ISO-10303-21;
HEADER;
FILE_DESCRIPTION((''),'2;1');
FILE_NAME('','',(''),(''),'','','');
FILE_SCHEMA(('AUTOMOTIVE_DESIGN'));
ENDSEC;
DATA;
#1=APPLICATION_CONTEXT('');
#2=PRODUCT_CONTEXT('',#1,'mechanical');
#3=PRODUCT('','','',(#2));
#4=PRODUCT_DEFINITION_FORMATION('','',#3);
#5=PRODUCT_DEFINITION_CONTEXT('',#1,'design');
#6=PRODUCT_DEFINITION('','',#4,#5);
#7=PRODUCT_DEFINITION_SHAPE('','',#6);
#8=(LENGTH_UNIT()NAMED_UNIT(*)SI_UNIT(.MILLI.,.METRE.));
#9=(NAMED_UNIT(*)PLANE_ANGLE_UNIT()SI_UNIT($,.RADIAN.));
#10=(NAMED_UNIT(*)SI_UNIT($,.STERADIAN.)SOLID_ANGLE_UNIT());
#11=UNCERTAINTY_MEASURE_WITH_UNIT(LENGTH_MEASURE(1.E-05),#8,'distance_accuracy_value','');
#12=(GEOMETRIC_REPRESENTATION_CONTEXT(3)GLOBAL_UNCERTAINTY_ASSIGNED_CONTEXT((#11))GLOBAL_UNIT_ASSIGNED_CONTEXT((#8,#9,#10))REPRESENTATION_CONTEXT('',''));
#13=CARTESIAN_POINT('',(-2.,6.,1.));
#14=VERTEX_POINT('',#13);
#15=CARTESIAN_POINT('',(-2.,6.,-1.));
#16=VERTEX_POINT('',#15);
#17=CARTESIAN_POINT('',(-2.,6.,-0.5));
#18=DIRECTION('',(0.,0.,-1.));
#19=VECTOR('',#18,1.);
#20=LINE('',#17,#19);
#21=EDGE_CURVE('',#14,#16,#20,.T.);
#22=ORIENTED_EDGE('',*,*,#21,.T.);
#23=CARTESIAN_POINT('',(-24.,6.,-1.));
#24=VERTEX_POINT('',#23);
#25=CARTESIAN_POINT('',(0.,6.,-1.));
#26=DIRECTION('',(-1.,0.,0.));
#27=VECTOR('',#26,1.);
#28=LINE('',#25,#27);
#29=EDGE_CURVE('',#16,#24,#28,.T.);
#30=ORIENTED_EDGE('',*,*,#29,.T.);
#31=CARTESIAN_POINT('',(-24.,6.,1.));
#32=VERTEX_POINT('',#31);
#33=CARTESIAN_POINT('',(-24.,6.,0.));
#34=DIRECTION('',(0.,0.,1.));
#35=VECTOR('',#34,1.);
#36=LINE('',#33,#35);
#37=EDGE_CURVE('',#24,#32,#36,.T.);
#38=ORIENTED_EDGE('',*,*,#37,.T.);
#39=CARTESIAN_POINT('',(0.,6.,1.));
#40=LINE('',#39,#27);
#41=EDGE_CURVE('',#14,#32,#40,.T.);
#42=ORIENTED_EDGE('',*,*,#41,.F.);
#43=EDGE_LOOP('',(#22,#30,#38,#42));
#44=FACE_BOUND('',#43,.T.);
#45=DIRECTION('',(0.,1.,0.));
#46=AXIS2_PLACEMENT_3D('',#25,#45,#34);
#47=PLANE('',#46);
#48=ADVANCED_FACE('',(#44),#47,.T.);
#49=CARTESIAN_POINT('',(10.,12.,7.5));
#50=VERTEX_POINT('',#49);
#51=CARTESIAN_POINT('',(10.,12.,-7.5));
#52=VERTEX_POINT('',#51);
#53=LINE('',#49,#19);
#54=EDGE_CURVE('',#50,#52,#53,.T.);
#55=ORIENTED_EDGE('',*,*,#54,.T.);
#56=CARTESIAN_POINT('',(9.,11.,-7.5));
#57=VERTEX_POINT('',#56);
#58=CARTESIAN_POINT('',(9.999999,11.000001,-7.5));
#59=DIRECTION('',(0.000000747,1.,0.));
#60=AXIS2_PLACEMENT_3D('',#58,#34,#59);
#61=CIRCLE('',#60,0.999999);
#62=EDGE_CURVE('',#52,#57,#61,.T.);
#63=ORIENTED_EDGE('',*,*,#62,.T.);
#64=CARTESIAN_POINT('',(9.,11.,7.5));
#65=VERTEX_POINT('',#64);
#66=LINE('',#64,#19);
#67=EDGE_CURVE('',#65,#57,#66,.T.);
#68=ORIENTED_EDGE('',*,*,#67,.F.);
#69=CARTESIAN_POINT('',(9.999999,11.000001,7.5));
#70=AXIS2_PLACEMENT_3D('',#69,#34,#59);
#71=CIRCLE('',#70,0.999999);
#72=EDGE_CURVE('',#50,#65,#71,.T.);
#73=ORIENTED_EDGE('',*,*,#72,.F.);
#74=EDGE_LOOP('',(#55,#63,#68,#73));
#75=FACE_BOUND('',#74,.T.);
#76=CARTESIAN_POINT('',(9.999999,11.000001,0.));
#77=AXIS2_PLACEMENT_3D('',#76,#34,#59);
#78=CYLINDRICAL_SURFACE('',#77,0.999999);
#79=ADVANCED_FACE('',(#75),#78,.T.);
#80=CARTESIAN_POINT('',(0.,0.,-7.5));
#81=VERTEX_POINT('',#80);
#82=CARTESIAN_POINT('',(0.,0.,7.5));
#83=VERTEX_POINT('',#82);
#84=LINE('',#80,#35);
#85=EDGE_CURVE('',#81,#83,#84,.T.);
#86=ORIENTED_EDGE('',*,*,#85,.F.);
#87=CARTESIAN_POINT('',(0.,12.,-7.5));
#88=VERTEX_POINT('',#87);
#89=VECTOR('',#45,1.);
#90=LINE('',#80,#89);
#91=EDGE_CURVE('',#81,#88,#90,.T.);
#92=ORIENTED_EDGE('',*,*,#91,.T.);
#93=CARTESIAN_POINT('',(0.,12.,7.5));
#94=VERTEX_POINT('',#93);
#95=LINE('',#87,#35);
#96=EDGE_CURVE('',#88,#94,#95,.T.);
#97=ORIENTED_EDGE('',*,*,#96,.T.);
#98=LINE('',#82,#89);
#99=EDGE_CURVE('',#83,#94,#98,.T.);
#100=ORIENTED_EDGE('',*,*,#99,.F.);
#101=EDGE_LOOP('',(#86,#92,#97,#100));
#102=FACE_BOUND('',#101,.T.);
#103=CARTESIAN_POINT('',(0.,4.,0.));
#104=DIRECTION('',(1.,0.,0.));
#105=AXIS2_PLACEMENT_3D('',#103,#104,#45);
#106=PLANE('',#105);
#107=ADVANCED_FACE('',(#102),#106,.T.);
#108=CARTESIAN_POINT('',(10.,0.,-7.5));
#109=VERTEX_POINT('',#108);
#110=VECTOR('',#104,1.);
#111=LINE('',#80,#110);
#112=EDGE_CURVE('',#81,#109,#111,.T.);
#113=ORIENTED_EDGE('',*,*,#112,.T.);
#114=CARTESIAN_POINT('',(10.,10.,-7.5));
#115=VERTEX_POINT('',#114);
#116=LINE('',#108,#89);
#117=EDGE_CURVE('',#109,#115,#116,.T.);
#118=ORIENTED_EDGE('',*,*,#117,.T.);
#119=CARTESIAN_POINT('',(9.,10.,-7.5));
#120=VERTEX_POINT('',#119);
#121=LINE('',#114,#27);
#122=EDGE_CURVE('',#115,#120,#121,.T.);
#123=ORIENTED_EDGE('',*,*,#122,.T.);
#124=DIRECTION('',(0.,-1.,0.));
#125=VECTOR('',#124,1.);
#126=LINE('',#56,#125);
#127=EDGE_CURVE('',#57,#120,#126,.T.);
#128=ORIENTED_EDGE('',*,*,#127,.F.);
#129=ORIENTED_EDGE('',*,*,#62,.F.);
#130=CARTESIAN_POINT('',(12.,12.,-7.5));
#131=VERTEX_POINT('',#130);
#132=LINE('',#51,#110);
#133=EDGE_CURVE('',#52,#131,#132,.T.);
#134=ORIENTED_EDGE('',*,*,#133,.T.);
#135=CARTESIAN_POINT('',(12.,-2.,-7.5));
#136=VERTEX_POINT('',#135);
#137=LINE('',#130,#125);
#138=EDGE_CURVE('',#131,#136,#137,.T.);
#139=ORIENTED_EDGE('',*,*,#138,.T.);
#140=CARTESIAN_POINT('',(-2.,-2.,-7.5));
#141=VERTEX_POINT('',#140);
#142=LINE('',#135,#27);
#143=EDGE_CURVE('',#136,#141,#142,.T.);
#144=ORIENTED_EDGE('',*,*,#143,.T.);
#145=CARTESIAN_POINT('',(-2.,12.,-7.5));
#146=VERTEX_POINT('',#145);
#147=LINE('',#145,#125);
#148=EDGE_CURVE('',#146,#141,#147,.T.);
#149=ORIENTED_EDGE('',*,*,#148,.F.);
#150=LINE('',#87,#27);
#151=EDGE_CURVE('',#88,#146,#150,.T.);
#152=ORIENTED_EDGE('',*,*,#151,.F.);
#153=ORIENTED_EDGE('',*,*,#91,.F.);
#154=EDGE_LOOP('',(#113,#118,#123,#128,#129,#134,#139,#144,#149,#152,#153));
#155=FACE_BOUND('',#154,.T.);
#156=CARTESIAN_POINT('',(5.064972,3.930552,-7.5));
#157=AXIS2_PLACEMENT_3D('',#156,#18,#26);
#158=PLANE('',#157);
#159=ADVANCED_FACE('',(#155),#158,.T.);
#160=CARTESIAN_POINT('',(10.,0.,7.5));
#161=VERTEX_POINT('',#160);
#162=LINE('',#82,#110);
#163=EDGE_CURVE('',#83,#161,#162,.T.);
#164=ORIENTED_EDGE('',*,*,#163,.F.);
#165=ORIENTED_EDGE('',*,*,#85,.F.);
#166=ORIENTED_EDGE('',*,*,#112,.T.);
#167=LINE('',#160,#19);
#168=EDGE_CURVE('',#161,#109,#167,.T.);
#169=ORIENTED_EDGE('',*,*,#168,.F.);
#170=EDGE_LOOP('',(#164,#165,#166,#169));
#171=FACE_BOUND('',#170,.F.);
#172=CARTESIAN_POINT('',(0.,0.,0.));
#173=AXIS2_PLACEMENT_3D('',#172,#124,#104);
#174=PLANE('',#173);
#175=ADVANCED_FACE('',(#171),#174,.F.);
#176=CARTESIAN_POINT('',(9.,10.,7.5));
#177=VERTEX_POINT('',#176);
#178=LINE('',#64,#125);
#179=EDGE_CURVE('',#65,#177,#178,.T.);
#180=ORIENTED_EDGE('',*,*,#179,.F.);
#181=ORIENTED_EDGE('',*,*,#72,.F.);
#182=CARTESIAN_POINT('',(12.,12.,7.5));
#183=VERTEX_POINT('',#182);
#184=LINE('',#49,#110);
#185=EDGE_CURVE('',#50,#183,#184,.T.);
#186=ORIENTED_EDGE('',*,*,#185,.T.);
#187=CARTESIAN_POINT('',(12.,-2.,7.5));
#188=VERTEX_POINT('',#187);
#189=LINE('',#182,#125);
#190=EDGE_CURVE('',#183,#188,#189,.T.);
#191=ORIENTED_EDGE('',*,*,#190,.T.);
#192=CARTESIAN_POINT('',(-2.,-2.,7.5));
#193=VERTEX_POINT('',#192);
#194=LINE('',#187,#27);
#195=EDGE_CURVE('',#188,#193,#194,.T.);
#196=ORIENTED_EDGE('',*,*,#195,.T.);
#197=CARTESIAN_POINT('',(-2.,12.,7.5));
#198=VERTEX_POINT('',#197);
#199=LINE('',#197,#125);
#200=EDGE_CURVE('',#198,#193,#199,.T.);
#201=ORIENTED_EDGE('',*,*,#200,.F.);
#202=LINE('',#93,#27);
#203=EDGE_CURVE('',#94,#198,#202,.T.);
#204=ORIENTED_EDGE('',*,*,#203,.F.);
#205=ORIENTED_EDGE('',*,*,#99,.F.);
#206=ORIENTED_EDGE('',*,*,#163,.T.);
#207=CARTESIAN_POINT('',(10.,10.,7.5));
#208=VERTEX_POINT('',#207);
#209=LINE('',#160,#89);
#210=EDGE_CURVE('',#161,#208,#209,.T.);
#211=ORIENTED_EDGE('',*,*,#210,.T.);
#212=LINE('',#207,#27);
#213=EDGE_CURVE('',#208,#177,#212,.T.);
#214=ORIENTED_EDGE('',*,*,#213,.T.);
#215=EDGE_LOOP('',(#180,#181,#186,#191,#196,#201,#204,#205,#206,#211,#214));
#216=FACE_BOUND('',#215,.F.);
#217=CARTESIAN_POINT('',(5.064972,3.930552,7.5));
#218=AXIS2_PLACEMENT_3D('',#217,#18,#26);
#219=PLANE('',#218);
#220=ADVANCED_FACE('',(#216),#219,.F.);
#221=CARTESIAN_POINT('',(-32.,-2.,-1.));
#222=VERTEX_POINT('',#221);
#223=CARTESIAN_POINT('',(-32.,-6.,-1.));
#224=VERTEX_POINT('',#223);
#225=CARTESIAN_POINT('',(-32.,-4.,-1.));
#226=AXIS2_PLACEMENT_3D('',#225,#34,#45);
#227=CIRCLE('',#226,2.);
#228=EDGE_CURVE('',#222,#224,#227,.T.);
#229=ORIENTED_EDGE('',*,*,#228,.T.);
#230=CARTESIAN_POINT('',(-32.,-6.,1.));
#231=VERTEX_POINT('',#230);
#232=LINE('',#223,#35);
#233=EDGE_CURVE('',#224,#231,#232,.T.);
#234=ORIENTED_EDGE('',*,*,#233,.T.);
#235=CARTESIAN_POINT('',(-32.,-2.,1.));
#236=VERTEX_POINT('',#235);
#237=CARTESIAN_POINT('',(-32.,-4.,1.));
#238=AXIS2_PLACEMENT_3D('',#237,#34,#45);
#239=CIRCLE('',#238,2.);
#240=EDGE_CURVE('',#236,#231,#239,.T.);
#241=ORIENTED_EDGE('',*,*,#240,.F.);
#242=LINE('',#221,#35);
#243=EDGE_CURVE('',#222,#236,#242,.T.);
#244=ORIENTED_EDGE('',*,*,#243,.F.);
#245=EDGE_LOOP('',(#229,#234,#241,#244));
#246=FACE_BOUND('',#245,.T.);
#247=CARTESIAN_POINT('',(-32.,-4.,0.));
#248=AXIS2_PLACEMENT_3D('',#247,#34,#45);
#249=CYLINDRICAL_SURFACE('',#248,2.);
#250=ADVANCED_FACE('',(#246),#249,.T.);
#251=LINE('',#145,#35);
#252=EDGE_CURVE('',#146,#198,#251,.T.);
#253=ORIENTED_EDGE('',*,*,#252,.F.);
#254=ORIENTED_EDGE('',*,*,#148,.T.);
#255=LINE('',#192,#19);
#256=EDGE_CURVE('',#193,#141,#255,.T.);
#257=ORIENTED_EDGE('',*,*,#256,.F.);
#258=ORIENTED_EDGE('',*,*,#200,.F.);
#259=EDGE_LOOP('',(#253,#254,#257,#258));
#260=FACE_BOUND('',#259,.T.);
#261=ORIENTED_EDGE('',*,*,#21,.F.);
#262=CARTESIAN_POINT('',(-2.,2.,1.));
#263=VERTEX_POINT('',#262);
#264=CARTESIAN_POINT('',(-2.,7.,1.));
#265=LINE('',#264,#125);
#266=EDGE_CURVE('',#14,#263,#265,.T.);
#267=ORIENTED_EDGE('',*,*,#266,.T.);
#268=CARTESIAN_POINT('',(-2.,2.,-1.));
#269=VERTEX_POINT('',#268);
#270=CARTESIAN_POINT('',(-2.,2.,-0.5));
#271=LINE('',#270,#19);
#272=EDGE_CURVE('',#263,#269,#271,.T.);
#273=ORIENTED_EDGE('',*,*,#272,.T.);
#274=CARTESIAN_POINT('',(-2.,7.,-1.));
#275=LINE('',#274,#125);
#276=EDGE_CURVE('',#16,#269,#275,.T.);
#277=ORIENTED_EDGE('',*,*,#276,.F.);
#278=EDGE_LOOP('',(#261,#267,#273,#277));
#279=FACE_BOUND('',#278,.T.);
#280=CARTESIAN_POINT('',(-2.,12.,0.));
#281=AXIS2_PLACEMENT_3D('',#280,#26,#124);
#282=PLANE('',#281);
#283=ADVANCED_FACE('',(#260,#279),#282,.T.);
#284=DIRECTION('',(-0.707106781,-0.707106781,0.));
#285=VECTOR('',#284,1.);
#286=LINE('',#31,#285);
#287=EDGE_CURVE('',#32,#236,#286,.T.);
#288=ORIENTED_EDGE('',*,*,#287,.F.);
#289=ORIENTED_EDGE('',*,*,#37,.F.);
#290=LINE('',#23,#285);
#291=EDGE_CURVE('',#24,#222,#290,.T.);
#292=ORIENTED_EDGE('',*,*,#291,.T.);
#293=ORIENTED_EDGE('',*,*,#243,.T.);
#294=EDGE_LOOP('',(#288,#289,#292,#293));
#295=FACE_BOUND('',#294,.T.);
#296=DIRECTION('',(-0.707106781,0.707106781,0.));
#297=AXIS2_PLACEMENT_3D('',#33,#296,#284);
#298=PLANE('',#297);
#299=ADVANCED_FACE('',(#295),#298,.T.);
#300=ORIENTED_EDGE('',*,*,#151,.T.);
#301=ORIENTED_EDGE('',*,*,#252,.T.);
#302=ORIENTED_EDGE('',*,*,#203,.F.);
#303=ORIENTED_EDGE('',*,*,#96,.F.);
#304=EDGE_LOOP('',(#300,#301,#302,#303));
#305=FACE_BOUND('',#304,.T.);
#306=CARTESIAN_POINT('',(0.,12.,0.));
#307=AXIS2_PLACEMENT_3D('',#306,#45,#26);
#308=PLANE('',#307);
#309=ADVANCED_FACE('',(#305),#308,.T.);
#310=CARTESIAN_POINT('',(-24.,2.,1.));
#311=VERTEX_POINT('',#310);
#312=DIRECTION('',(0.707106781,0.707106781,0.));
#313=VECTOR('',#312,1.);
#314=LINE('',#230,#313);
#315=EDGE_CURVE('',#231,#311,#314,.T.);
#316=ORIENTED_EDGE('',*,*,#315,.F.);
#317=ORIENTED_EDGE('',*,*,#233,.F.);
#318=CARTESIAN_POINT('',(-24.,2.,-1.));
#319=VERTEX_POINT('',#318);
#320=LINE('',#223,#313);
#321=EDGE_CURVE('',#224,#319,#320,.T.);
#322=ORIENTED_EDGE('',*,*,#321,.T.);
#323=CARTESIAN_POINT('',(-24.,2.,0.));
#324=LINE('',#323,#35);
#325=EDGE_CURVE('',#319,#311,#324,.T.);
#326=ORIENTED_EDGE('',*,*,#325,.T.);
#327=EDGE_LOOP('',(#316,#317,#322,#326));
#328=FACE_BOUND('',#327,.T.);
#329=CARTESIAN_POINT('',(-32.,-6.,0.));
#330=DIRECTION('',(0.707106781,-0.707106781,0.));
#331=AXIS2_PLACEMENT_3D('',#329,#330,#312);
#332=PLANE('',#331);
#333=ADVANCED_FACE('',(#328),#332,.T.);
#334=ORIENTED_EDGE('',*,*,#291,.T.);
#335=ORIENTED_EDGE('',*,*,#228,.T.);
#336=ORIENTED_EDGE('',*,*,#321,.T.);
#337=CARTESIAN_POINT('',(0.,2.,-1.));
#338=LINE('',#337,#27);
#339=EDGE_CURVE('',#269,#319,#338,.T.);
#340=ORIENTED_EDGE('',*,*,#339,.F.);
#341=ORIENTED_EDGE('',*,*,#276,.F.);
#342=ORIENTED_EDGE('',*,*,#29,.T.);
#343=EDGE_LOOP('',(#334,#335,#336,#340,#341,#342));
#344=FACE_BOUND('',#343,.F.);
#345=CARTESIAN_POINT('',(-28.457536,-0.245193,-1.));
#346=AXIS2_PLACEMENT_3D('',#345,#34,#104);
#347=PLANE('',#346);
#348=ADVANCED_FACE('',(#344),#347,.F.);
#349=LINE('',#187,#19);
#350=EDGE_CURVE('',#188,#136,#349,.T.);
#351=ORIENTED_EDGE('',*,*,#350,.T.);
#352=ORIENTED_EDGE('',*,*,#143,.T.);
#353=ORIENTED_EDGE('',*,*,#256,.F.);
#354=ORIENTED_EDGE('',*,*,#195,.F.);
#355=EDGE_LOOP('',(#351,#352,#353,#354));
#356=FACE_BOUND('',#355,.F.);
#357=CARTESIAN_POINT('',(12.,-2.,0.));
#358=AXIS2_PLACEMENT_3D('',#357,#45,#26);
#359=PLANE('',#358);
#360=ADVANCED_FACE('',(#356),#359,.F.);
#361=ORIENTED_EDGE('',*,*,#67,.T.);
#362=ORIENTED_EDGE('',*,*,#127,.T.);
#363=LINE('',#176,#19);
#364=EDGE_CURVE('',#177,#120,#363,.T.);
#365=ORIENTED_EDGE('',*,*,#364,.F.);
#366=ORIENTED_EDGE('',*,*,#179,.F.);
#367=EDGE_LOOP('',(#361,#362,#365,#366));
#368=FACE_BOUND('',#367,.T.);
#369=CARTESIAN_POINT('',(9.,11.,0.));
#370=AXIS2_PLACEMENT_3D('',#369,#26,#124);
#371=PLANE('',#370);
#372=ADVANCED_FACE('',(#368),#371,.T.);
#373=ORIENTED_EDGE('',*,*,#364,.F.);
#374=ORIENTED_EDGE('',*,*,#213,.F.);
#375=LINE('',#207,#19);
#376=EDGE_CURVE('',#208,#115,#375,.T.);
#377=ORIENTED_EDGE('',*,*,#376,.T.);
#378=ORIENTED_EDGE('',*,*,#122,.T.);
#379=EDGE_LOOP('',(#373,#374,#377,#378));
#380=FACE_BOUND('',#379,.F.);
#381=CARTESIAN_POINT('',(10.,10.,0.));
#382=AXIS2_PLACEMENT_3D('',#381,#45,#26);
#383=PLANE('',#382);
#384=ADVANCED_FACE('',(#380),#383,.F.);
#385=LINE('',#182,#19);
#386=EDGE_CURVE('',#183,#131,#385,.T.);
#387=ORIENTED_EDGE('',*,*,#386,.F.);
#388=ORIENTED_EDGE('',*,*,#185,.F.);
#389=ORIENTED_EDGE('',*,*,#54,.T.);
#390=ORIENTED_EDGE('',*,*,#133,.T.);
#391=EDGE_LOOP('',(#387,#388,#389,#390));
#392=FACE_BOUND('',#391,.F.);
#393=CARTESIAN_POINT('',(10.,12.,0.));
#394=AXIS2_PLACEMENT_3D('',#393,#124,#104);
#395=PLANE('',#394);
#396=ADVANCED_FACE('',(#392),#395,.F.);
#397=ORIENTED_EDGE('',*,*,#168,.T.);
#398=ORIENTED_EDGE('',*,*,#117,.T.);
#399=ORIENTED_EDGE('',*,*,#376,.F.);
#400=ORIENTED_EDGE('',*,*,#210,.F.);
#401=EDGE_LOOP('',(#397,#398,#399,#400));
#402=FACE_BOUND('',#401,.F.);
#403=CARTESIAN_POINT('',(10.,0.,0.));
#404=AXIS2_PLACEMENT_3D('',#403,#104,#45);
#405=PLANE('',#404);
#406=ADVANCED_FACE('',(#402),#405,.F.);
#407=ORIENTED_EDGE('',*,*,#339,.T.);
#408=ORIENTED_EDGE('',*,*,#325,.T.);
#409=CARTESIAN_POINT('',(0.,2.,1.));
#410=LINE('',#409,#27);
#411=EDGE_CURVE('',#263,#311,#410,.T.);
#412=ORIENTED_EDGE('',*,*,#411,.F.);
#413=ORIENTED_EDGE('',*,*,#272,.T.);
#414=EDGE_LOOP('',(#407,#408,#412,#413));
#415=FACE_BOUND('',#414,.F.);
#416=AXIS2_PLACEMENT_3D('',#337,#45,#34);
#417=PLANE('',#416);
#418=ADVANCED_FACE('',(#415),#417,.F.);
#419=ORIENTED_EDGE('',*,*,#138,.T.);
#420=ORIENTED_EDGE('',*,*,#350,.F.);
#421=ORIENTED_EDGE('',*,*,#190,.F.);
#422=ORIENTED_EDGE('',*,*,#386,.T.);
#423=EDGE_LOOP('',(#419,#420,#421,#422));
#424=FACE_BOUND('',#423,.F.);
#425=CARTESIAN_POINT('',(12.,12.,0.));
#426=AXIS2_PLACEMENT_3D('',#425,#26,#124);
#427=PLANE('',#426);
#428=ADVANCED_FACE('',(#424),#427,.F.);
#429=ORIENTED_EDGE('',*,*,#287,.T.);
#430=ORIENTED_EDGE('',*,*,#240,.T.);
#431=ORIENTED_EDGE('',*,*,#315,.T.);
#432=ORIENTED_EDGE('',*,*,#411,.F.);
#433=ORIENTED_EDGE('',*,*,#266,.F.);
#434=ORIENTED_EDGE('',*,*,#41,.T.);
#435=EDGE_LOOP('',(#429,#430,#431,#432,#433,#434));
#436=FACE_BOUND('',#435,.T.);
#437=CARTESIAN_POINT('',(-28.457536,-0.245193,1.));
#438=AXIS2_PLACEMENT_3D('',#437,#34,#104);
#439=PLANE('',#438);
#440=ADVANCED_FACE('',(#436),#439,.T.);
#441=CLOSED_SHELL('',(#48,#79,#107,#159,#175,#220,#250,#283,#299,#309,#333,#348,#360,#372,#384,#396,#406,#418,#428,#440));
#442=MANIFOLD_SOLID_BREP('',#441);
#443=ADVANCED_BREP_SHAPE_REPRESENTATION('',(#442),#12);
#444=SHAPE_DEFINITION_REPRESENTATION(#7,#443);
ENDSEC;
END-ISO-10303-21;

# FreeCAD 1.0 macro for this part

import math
import FreeCAD as App
import Part
import Sketcher
from FreeCAD import Vector
Q = App.Units.Quantity


def add_polygon(sketch, points):
    """Adds a closed chain of lines whose ends are joined by coincident constraints."""
    first, n = sketch.GeometryCount, len(points)
    for a, b in zip(points, points[1:] + points[:1]):
        sketch.addGeometry(Part.LineSegment(App.Vector(*a, 0), App.Vector(*b, 0)), False)
    for i in range(n):
        sketch.addConstraint(Sketcher.Constraint("Coincident", first + i, 2, first + (i + 1) % n, 1))

doc = App.newDocument("Part")
body = doc.addObject("PartDesign::Body", "Body")

sketch1 = body.newObject("Sketcher::SketchObject", "Sketch")
sketch1.AttachmentSupport = (doc.getObject("XY_Plane"), [""])
sketch1.MapMode = "FlatFace"
sketch1.addGeometry(Part.LineSegment(Vector(10, 0, 0), Vector(0, 0, 0)), False)
sketch1.addGeometry(Part.LineSegment(Vector(0, 0, 0), Vector(0, 12, 0)), False)
sketch1.addGeometry(Part.LineSegment(Vector(0, 12, 0), Vector(-2, 12, 0)), False)
sketch1.addGeometry(Part.LineSegment(Vector(-2, 12, 0), Vector(-2, -2, 0)), False)
sketch1.addGeometry(Part.LineSegment(Vector(-2, -2, 0), Vector(12, -2, 0)), False)
sketch1.addGeometry(Part.LineSegment(Vector(12, -2, 0), Vector(12, 12, 0)), False)
sketch1.addGeometry(Part.LineSegment(Vector(12, 12, 0), Vector(10, 12, 0)), False)
sketch1.addGeometry(Part.ArcOfCircle(Part.Circle(Vector(10, 11, 0), Vector(0, 0, 1), 1), math.radians(90), math.radians(180)), False)
sketch1.addGeometry(Part.LineSegment(Vector(9, 11, 0), Vector(9, 10, 0)), False)
sketch1.addGeometry(Part.LineSegment(Vector(9, 10, 0), Vector(10, 10, 0)), False)
sketch1.addGeometry(Part.LineSegment(Vector(10, 10, 0), Vector(10, 0, 0)), False)
sketch1.addConstraint(Sketcher.Constraint("Coincident", 0, 2, 1, 1))
sketch1.addConstraint(Sketcher.Constraint("Coincident", 1, 2, 2, 1))
sketch1.addConstraint(Sketcher.Constraint("Coincident", 2, 2, 3, 1))
sketch1.addConstraint(Sketcher.Constraint("Coincident", 3, 2, 4, 1))
sketch1.addConstraint(Sketcher.Constraint("Coincident", 4, 2, 5, 1))
sketch1.addConstraint(Sketcher.Constraint("Coincident", 5, 2, 6, 1))
sketch1.addConstraint(Sketcher.Constraint("Tangent", 6, 2, 7, 1))
sketch1.addConstraint(Sketcher.Constraint("Tangent", 7, 2, 8, 1))
sketch1.addConstraint(Sketcher.Constraint("Coincident", 8, 2, 9, 1))
sketch1.addConstraint(Sketcher.Constraint("Coincident", 9, 2, 10, 1))
sketch1.addConstraint(Sketcher.Constraint("Coincident", 10, 2, 0, 1))
sketch1.addConstraint(Sketcher.Constraint("Horizontal", 0))
sketch1.addConstraint(Sketcher.Constraint("Vertical", 1))
sketch1.addConstraint(Sketcher.Constraint("Horizontal", 2))
sketch1.addConstraint(Sketcher.Constraint("Vertical", 3))
sketch1.addConstraint(Sketcher.Constraint("Horizontal", 4))
sketch1.addConstraint(Sketcher.Constraint("Vertical", 5))
sketch1.addConstraint(Sketcher.Constraint("Horizontal", 6))
sketch1.addConstraint(Sketcher.Constraint("Vertical", 8))
sketch1.addConstraint(Sketcher.Constraint("Horizontal", 9))
sketch1.addConstraint(Sketcher.Constraint("Vertical", 10))
sketch1.addConstraint(Sketcher.Constraint("Coincident", 0, 2, -1, 1))
sketch1.addConstraint(Sketcher.Constraint("Horizontal", 2, 2, 5, 2))
sketch1.addConstraint(Sketcher.Constraint("Vertical", 6, 2, 9, 2))
sketch1.addConstraint(Sketcher.Constraint("Equal", 2, 6))
sketch1.addConstraint(Sketcher.Constraint("Equal", 4, 3))
sketch1.addConstraint(Sketcher.Constraint("Equal", 9, 8))
sketch1.addConstraint(Sketcher.Constraint("Equal", 0, 10))
sketch1.addConstraint(Sketcher.Constraint("Radius", 7, 0.999999))
sketch1.addConstraint(Sketcher.Constraint("DistanceX", 0, 2, 0, 1, 10.0))
sketch1.addConstraint(Sketcher.Constraint("DistanceX", 2, 2, 2, 1, 2.0))
pad1 = body.newObject("PartDesign::Pad", "Pad")
pad1.Profile = sketch1
pad1.Length = 15
pad1.Midplane = True

sketch2 = body.newObject("Sketcher::SketchObject", "Sketch001")
sketch2.AttachmentSupport = (doc.getObject("YZ_Plane"), [""])
sketch2.MapMode = "FlatFace"
add_polygon(sketch2, [(2, 1), (2, -1), (6, -1), (6, 1)])
sketch2.addConstraint(Sketcher.Constraint("Vertical", 0))
sketch2.addConstraint(Sketcher.Constraint("Horizontal", 1))
sketch2.addConstraint(Sketcher.Constraint("Vertical", 2))
sketch2.addConstraint(Sketcher.Constraint("Horizontal", 3))
sketch2.addConstraint(Sketcher.Constraint("DistanceX", 1, 1, 1, 2, 4.0))
sketch2.addConstraint(Sketcher.Constraint("DistanceY", 0, 2, 0, 1, 2.0))
sketch2.addConstraint(Sketcher.Constraint("DistanceX", -1, 1, 0, 2, 2.0))
sketch2.addConstraint(Sketcher.Constraint("DistanceY", 0, 2, -1, 1, 1.0))
pad2 = body.newObject("PartDesign::Pad", "Pad001")
pad2.Profile = sketch2
pad2.Length = 24
pad2.Reversed = True

sketch3 = body.newObject("Sketcher::SketchObject", "Sketch002")
sketch3.AttachmentSupport = (doc.getObject("XY_Plane"), [""])
sketch3.MapMode = "FlatFace"
sketch3.addGeometry(Part.LineSegment(Vector(-24, 6, 0), Vector(-32, -2, 0)), False)
sketch3.addGeometry(Part.ArcOfCircle(Part.Circle(Vector(-32, -4, 0), Vector(0, 0, 1), 2), math.radians(90), math.radians(270)), False)
sketch3.addGeometry(Part.LineSegment(Vector(-32, -6, 0), Vector(-24, 2, 0)), False)
sketch3.addGeometry(Part.LineSegment(Vector(-24, 2, 0), Vector(-24, 6, 0)), False)
sketch3.addConstraint(Sketcher.Constraint("Coincident", 0, 2, 1, 1))
sketch3.addConstraint(Sketcher.Constraint("Coincident", 1, 2, 2, 1))
sketch3.addConstraint(Sketcher.Constraint("Coincident", 2, 2, 3, 1))
sketch3.addConstraint(Sketcher.Constraint("Coincident", 3, 2, 0, 1))
sketch3.addConstraint(Sketcher.Constraint("Vertical", 3))
sketch3.addConstraint(Sketcher.Constraint("Parallel", 0, 2))
sketch3.addConstraint(Sketcher.Constraint("Vertical", 1, 3, 0, 2))
sketch3.addConstraint(Sketcher.Constraint("Vertical", 0, 2, 1, 2))
sketch3.addConstraint(Sketcher.Constraint("Radius", 1, 2.0))
sketch3.addConstraint(Sketcher.Constraint("Angle", 0, Q("-135 deg")))
sketch3.addConstraint(Sketcher.Constraint("DistanceX", 1, 3, -1, 1, 32.0))
sketch3.addConstraint(Sketcher.Constraint("DistanceY", 1, 3, -1, 1, 4.0))
sketch3.addConstraint(Sketcher.Constraint("DistanceX", 2, 2, -1, 1, 24.0))
pad3 = body.newObject("PartDesign::Pad", "Pad002")
pad3.Profile = sketch3
pad3.Length = 2
pad3.Midplane = True

doc.recompute()
